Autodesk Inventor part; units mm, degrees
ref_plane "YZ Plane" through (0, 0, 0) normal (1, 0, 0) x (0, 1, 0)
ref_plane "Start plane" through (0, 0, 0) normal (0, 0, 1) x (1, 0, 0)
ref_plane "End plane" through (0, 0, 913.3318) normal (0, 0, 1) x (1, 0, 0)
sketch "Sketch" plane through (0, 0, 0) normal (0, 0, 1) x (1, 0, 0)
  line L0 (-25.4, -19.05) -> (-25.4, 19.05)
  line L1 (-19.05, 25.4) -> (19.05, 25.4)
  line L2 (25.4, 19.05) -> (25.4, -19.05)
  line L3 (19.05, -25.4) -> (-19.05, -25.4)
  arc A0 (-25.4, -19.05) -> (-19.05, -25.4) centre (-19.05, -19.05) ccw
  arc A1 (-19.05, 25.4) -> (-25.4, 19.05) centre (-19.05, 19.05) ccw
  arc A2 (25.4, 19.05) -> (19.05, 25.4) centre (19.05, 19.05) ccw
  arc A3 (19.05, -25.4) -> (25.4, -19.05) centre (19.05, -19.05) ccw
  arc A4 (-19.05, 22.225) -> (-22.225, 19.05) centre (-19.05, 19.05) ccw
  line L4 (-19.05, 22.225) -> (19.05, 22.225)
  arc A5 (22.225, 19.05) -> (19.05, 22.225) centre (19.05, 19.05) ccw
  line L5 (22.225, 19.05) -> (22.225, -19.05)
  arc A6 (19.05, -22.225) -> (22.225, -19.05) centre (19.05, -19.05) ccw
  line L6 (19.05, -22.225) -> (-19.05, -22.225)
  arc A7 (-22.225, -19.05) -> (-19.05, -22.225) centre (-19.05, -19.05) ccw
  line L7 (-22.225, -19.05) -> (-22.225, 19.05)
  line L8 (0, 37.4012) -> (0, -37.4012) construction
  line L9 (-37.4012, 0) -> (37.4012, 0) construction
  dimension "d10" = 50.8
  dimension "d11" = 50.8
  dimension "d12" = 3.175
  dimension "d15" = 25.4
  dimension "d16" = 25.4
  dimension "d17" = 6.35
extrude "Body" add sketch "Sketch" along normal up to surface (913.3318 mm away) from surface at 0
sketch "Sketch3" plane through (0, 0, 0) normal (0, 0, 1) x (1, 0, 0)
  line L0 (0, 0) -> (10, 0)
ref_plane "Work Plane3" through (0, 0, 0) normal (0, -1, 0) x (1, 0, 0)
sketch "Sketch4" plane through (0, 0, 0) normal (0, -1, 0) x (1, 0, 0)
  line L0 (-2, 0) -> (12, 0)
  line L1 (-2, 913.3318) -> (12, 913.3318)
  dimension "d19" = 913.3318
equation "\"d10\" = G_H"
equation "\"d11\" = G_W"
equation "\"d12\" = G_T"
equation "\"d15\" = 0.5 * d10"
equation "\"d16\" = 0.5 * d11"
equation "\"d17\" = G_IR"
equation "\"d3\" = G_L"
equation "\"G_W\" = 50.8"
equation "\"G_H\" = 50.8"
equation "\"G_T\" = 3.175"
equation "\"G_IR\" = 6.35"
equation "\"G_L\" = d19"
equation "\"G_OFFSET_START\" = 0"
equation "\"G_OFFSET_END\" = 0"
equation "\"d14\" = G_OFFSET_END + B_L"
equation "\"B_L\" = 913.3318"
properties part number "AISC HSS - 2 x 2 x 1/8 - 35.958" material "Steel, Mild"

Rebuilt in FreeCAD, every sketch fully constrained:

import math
import FreeCAD as App
import Part
import Sketcher
Q = App.Units.Quantity

doc = App.newDocument("Part")
body = doc.addObject("PartDesign::Body", "Body")

# Sketch on XY plane
sketch1 = body.newObject("Sketcher::SketchObject", "Sketch")
sketch1.AttachmentSupport = (doc.getObject("XY_Plane"), [""])
sketch1.MapMode = "FlatFace"
sketch1.addGeometry(Part.LineSegment(App.Vector(-25.4, 19.1, 0), App.Vector(-25.4, -19.1, 0)), False)
sketch1.addGeometry(Part.ArcOfCircle(Part.Circle(App.Vector(-19.1, -19.1, 0), App.Vector(0, 0, 1), 6.3), math.radians(180), math.radians(270)), False)
sketch1.addGeometry(Part.LineSegment(App.Vector(-19.1, -25.4, 0), App.Vector(19.1, -25.4, 0)), False)
sketch1.addGeometry(Part.ArcOfCircle(Part.Circle(App.Vector(19.1, -19.1, 0), App.Vector(0, 0, 1), 6.3), math.radians(-90), math.radians(0)), False)
sketch1.addGeometry(Part.LineSegment(App.Vector(25.4, -19.1, 0), App.Vector(25.4, 19.1, 0)), False)
sketch1.addGeometry(Part.ArcOfCircle(Part.Circle(App.Vector(19.1, 19.1, 0), App.Vector(0, 0, 1), 6.3), math.radians(0), math.radians(90)), False)
sketch1.addGeometry(Part.LineSegment(App.Vector(19.1, 25.4, 0), App.Vector(-19.1, 25.4, 0)), False)
sketch1.addGeometry(Part.ArcOfCircle(Part.Circle(App.Vector(-19.1, 19.1, 0), App.Vector(0, 0, 1), 6.3), math.radians(90), math.radians(180)), False)
sketch1.addGeometry(Part.ArcOfCircle(Part.Circle(App.Vector(-19.1, 19.1, 0), App.Vector(0, 0, 1), 3.2), math.radians(90), math.radians(180)), False)
sketch1.addGeometry(Part.LineSegment(App.Vector(-19.1, 22.2, 0), App.Vector(19.1, 22.2, 0)), False)
sketch1.addGeometry(Part.ArcOfCircle(Part.Circle(App.Vector(19.1, 19.1, 0), App.Vector(0, 0, 1), 3.2), math.radians(0), math.radians(90)), False)
sketch1.addGeometry(Part.LineSegment(App.Vector(22.2, 19.1, 0), App.Vector(22.2, -19.1, 0)), False)
sketch1.addGeometry(Part.ArcOfCircle(Part.Circle(App.Vector(19.1, -19.1, 0), App.Vector(0, 0, 1), 3.2), math.radians(-90), math.radians(0)), False)
sketch1.addGeometry(Part.LineSegment(App.Vector(19.1, -22.2, 0), App.Vector(-19.1, -22.2, 0)), False)
sketch1.addGeometry(Part.ArcOfCircle(Part.Circle(App.Vector(-19.1, -19.1, 0), App.Vector(0, 0, 1), 3.2), math.radians(180), math.radians(270)), False)
sketch1.addGeometry(Part.LineSegment(App.Vector(-22.2, -19.1, 0), App.Vector(-22.2, 19.1, 0)), False)
sketch1.addConstraint(Sketcher.Constraint("Tangent", 0, 2, 1, 1))
sketch1.addConstraint(Sketcher.Constraint("Tangent", 1, 2, 2, 1))
sketch1.addConstraint(Sketcher.Constraint("Tangent", 2, 2, 3, 1))
sketch1.addConstraint(Sketcher.Constraint("Tangent", 3, 2, 4, 1))
sketch1.addConstraint(Sketcher.Constraint("Tangent", 4, 2, 5, 1))
sketch1.addConstraint(Sketcher.Constraint("Tangent", 5, 2, 6, 1))
sketch1.addConstraint(Sketcher.Constraint("Tangent", 6, 2, 7, 1))
sketch1.addConstraint(Sketcher.Constraint("Tangent", 7, 2, 0, 1))
sketch1.addConstraint(Sketcher.Constraint("Tangent", 8, 1, 9, 1))
sketch1.addConstraint(Sketcher.Constraint("Tangent", 9, 2, 10, 2))
sketch1.addConstraint(Sketcher.Constraint("Tangent", 10, 1, 11, 1))
sketch1.addConstraint(Sketcher.Constraint("Tangent", 11, 2, 12, 2))
sketch1.addConstraint(Sketcher.Constraint("Tangent", 12, 1, 13, 1))
sketch1.addConstraint(Sketcher.Constraint("Tangent", 13, 2, 14, 2))
sketch1.addConstraint(Sketcher.Constraint("Tangent", 14, 1, 15, 1))
sketch1.addConstraint(Sketcher.Constraint("Tangent", 15, 2, 8, 2))
sketch1.addConstraint(Sketcher.Constraint("Vertical", 0))
sketch1.addConstraint(Sketcher.Constraint("Horizontal", 2))
sketch1.addConstraint(Sketcher.Constraint("Vertical", 4))
sketch1.addConstraint(Sketcher.Constraint("Horizontal", 6))
sketch1.addConstraint(Sketcher.Constraint("Horizontal", 9))
sketch1.addConstraint(Sketcher.Constraint("Vertical", 11))
sketch1.addConstraint(Sketcher.Constraint("Horizontal", 13))
sketch1.addConstraint(Sketcher.Constraint("Vertical", 15))
sketch1.addConstraint(Sketcher.Constraint("Coincident", 8, 3, 7, 3))
sketch1.addConstraint(Sketcher.Constraint("Coincident", 10, 3, 5, 3))
sketch1.addConstraint(Sketcher.Constraint("Coincident", 12, 3, 3, 3))
sketch1.addConstraint(Sketcher.Constraint("Equal", 1, 3))
sketch1.addConstraint(Sketcher.Constraint("Equal", 3, 5))
sketch1.addConstraint(Sketcher.Constraint("Equal", 5, 7))
sketch1.addConstraint(Sketcher.Constraint("Equal", 12, 14))
sketch1.addConstraint(Sketcher.Constraint("Symmetric", 1, 3, 5, 3, -1, 1))
sketch1.addConstraint(Sketcher.Constraint("Equal", 13, 0))
sketch1.addConstraint(Sketcher.Constraint("Radius", 1, Q("0.25 in")))
sketch1.addConstraint(Sketcher.Constraint("DistanceX", 0, 2, -1, 1, Q("1 in")))
sketch1.addConstraint(Sketcher.Constraint("Radius", 8, Q("0.125 in")))
pad1 = body.newObject("PartDesign::Pad", "Pad")
pad1.Profile = sketch1
pad1.Length = 913.3318

doc.recompute()
